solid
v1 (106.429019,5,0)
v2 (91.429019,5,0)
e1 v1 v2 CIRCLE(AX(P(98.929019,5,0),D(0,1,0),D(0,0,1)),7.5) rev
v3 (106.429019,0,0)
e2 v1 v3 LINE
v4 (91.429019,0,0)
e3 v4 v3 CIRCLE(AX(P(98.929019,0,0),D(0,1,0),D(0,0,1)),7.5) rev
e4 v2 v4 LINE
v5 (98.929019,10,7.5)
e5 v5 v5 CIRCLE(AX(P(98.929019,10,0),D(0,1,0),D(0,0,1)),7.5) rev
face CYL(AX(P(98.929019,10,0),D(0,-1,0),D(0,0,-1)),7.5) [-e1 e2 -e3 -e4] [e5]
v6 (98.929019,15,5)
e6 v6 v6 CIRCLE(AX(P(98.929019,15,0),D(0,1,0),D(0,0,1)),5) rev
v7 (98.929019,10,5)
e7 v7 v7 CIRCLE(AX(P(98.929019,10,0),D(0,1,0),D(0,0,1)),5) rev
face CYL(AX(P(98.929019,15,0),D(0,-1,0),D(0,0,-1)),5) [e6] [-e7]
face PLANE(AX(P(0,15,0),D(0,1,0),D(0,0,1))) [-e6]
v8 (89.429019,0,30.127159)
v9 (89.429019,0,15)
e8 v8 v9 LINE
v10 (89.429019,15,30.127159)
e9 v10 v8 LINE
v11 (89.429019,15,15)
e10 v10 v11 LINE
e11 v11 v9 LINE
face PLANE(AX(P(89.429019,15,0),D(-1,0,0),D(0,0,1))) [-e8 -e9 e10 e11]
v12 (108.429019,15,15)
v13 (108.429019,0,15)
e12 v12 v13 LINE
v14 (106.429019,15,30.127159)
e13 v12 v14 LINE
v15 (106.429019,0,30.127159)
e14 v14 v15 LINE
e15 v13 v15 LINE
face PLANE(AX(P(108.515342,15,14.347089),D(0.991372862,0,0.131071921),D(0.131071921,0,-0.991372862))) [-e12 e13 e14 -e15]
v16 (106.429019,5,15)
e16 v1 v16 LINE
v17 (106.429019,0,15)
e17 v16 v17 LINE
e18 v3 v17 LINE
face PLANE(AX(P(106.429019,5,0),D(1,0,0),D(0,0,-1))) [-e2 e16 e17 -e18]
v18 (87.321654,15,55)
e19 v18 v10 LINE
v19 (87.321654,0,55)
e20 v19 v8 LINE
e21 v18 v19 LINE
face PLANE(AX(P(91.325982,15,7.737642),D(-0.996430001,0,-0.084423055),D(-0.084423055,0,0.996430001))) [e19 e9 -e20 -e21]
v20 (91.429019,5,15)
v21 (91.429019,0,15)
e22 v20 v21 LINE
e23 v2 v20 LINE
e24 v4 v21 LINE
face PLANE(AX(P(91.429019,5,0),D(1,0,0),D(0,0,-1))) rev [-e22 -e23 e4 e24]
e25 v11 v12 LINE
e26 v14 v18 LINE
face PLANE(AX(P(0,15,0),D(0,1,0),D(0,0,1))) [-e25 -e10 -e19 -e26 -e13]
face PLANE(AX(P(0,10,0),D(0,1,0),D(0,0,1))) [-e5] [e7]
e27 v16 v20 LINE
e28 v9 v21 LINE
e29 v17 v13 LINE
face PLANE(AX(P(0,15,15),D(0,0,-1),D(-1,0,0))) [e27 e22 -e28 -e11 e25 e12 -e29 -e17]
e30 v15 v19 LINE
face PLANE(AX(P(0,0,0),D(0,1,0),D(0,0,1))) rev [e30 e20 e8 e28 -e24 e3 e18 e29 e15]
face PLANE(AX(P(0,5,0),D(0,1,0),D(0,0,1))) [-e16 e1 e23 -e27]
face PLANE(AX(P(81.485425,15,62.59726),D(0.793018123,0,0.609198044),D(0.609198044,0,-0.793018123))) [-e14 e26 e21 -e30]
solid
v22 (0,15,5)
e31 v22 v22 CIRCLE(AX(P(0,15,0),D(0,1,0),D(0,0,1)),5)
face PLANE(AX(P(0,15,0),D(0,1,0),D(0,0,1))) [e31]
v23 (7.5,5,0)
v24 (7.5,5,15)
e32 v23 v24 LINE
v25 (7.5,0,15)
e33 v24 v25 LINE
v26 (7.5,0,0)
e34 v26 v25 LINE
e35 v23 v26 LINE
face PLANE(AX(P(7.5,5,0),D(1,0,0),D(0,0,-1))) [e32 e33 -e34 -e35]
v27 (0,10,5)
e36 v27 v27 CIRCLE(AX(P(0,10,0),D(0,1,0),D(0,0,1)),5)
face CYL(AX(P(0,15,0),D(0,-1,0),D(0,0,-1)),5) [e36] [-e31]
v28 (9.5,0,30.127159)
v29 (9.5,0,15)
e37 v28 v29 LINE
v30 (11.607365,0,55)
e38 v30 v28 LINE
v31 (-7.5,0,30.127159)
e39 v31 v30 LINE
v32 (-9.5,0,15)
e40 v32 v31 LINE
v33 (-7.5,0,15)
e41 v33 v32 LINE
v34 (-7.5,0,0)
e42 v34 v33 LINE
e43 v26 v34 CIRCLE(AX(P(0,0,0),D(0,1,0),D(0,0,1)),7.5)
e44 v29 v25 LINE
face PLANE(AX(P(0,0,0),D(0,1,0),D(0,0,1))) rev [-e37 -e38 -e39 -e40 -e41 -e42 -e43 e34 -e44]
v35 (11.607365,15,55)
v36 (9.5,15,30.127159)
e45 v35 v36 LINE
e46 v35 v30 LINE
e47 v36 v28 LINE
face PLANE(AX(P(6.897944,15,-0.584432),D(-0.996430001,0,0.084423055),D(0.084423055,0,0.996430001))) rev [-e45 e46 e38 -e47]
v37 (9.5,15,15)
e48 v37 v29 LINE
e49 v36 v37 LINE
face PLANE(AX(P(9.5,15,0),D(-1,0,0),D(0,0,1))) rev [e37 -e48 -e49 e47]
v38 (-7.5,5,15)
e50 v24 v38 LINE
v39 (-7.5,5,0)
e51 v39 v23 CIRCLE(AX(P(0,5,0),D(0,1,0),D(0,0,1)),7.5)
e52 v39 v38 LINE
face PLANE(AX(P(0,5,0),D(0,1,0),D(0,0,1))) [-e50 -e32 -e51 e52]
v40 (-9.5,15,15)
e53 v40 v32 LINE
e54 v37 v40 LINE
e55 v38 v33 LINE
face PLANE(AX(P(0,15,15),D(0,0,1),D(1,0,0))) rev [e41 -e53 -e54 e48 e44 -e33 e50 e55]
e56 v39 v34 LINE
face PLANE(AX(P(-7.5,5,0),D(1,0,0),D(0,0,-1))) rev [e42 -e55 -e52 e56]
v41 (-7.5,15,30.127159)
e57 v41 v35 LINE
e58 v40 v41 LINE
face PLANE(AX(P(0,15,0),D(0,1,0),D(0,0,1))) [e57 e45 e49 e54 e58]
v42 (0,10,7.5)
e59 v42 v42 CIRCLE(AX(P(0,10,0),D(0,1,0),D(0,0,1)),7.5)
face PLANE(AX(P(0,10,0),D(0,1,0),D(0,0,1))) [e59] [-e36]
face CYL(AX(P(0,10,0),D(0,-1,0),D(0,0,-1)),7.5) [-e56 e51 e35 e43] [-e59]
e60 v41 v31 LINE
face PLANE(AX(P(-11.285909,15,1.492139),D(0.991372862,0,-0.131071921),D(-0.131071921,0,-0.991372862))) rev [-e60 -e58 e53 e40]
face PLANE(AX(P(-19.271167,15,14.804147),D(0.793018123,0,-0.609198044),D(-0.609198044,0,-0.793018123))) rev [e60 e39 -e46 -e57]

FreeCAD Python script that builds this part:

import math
import FreeCAD as App
import Part
import Sketcher


def add_polygon(sketch, points):
    """Adds a closed chain of lines whose ends are joined by coincident constraints."""
    first, n = sketch.GeometryCount, len(points)
    for a, b in zip(points, points[1:] + points[:1]):
        sketch.addGeometry(Part.LineSegment(App.Vector(*a, 0), App.Vector(*b, 0)), False)
    for i in range(n):
        sketch.addConstraint(Sketcher.Constraint("Coincident", first + i, 2, first + (i + 1) % n, 1))

doc = App.newDocument("Part")
body = doc.addObject("PartDesign::Body", "Body")

# Sketch on XZ plane
sketch1 = doc.addObject("Sketcher::SketchObject", "Sketch")
body.addObject(sketch1)
sketch1.AttachmentSupport = (doc.XZ_Plane, [""])
sketch1.MapMode = "FlatFace"
sketch1.addGeometry(Part.Circle(App.Vector(0, 0, 0), App.Vector(0, 0, 1), 8), False)
sketch1.addGeometry(Part.Circle(App.Vector(0, 0, 0), App.Vector(0, 0, 1), 5), False)
sketch1.addConstraint(Sketcher.Constraint("Coincident", 0, 3, -1, 1))
sketch1.addConstraint(Sketcher.Constraint("Coincident", 1, 3, -1, 1))
sketch1.addConstraint(Sketcher.Constraint("Diameter", 0, 15.0))
sketch1.addConstraint(Sketcher.Constraint("Diameter", 1, 10.0))
pad1 = doc.addObject("PartDesign::Pad", "Pad")
body.addObject(pad1)
pad1.Profile = sketch1
pad1.Length = 10
pad1.Reversed = True
body2 = doc.addObject("PartDesign::Body", "Body001")

# Sketch on XZ plane
sketch2 = doc.addObject("Sketcher::SketchObject", "Sketch001")
body2.addObject(sketch2)
sketch2.AttachmentSupport = (doc.getObject("XZ_Plane001"), [""])
sketch2.MapMode = "FlatFace"
add_polygon(sketch2, [(10, 30), (10, 15), (-10, 15), (-8, 30), (12, 55)])  # lines 0-4
sketch2.addConstraint(Sketcher.Constraint("Vertical", 0))
sketch2.addConstraint(Sketcher.Constraint("Horizontal", 1))
sketch2.addConstraint(Sketcher.Constraint("Horizontal", 2, 2, 4, 2))
sketch2.addConstraint(Sketcher.Constraint("DistanceX", 1, 2, 1, 1, 19.0))
sketch2.addConstraint(Sketcher.Constraint("DistanceY", -1, 1, 0, 2, 15.0))
sketch2.addConstraint(Sketcher.Constraint("DistanceY", -1, 1, 3, 2, 55.0))
sketch2.addConstraint(Sketcher.Constraint("DistanceX", 1, 2, 2, 2, 2.0))
sketch2.addConstraint(Sketcher.Constraint("DistanceX", -1, 1, 0, 2, 9.5))
sketch2.addConstraint(Sketcher.Constraint("Distance", 2, 15.258798))
sketch2.addConstraint(Sketcher.Constraint("Distance", 3, 31.364783))
pad2 = doc.addObject("PartDesign::Pad", "Pad001")
body2.addObject(pad2)
pad2.Profile = sketch2
pad2.Length = 15
pad2.Reversed = True
body.AllowCompound = True
doc.recompute()

boolean = doc.addObject("PartDesign::Boolean", "Boolean")
body.addObject(boolean)
boolean.Type = "Fuse"
boolean.addObjects([body2])

# Sketch on XZ plane
sketch3 = doc.addObject("Sketcher::SketchObject", "Sketch002")
body.addObject(sketch3)
sketch3.AttachmentSupport = (doc.XZ_Plane, [""])
sketch3.MapMode = "FlatFace"
sketch3.addGeometry(Part.LineSegment(App.Vector(-8, 0, 0), App.Vector(-8, 15, 0)), False)
sketch3.addGeometry(Part.LineSegment(App.Vector(-8, 15, 0), App.Vector(8, 15, 0)), False)
sketch3.addGeometry(Part.LineSegment(App.Vector(8, 15, 0), App.Vector(8, 0, 0)), False)
sketch3.addGeometry(Part.ArcOfCircle(Part.Circle(App.Vector(0, 0, 0), App.Vector(0, 0, 1), 8), math.radians(0), math.radians(180)), False)
sketch3.addConstraint(Sketcher.Constraint("Coincident", 0, 2, 1, 1))
sketch3.addConstraint(Sketcher.Constraint("Coincident", 1, 2, 2, 1))
sketch3.addConstraint(Sketcher.Constraint("Tangent", 2, 2, 3, 1))
sketch3.addConstraint(Sketcher.Constraint("Tangent", 3, 2, 0, 1))
sketch3.addConstraint(Sketcher.Constraint("Vertical", 0))
sketch3.addConstraint(Sketcher.Constraint("Horizontal", 1))
sketch3.addConstraint(Sketcher.Constraint("Vertical", 2))
sketch3.addConstraint(Sketcher.Constraint("Coincident", 3, 3, -1, 1))
sketch3.addConstraint(Sketcher.Constraint("Equal", 1, 0))
sketch3.addConstraint(Sketcher.Constraint("Radius", 3, 7.5))
pad3 = doc.addObject("PartDesign::Pad", "Pad002")
body.addObject(pad3)
pad3.Profile = sketch3
pad3.Length = 5
pad3.Reversed = True

# Sketch on XZ plane
sketch4 = doc.addObject("Sketcher::SketchObject", "Sketch003")
body.addObject(sketch4)
sketch4.AttachmentSupport = (doc.XZ_Plane, [""])
sketch4.MapMode = "FlatFace"
sketch4.addGeometry(Part.Circle(App.Vector(0, 0, 0), App.Vector(0, 0, 1), 5), False)
sketch4.addConstraint(Sketcher.Constraint("Coincident", 0, 3, -1, 1))
sketch4.addConstraint(Sketcher.Constraint("Diameter", 0, 10.0))
pad4 = doc.addObject("PartDesign::Pad", "Pad003")
body.addObject(pad4)
pad4.Profile = sketch4
pad4.Length = 15
pad4.Reversed = True
body3 = doc.addObject("PartDesign::Body", "Body002")

# Sketch on XZ plane
sketch5 = doc.addObject("Sketcher::SketchObject", "Sketch004")
body3.addObject(sketch5)
sketch5.AttachmentSupport = (doc.getObject("XZ_Plane002"), [""])
sketch5.MapMode = "FlatFace"
sketch5.addGeometry(Part.Circle(App.Vector(99, 0, 0), App.Vector(0, 0, 1), 5), False)
sketch5.addConstraint(Sketcher.Constraint("PointOnObject", 0, 3, -1))
sketch5.addConstraint(Sketcher.Constraint("Diameter", 0, 10.0))
sketch5.addConstraint(Sketcher.Constraint("DistanceX", -1, 1, 0, 3, 98.929019))
pad5 = doc.addObject("PartDesign::Pad", "Pad004")
body3.addObject(pad5)
pad5.Profile = sketch5
pad5.Length = 15
pad5.Reversed = True

# Sketch on XZ plane
sketch6 = doc.addObject("Sketcher::SketchObject", "Sketch005")
body3.addObject(sketch6)
sketch6.AttachmentSupport = (doc.getObject("XZ_Plane002"), [""])
sketch6.MapMode = "FlatFace"
sketch6.addGeometry(Part.Circle(App.Vector(99, 0, 0), App.Vector(0, 0, 1), 8), False)
sketch6.addGeometry(Part.Circle(App.Vector(99, 0, 0), App.Vector(0, 0, 1), 5), False)
sketch6.addConstraint(Sketcher.Constraint("Coincident", 1, 3, 0, 3))
sketch6.addConstraint(Sketcher.Constraint("PointOnObject", 0, 3, -1))
sketch6.addConstraint(Sketcher.Constraint("Diameter", 0, 15.0))
sketch6.addConstraint(Sketcher.Constraint("Diameter", 1, 10.0))
sketch6.addConstraint(Sketcher.Constraint("DistanceX", -1, 1, 0, 3, 98.929019))
pad6 = doc.addObject("PartDesign::Pad", "Pad005")
body3.addObject(pad6)
pad6.Profile = sketch6
pad6.Length = 10
pad6.Reversed = True

# Sketch on XZ plane
sketch7 = doc.addObject("Sketcher::SketchObject", "Sketch006")
body3.addObject(sketch7)
sketch7.AttachmentSupport = (doc.getObject("XZ_Plane002"), [""])
sketch7.MapMode = "FlatFace"
sketch7.addGeometry(Part.ArcOfCircle(Part.Circle(App.Vector(99, 0, 0), App.Vector(0, 0, 1), 8), math.radians(0), math.radians(180)), False)
sketch7.addGeometry(Part.LineSegment(App.Vector(91, 0, 0), App.Vector(91, 15, 0)), False)
sketch7.addGeometry(Part.LineSegment(App.Vector(91, 15, 0), App.Vector(106, 15, 0)), False)
sketch7.addGeometry(Part.LineSegment(App.Vector(106, 15, 0), App.Vector(106, 0, 0)), False)
sketch7.addConstraint(Sketcher.Constraint("Tangent", 0, 2, 1, 1))
sketch7.addConstraint(Sketcher.Constraint("Coincident", 1, 2, 2, 1))
sketch7.addConstraint(Sketcher.Constraint("Coincident", 2, 2, 3, 1))
sketch7.addConstraint(Sketcher.Constraint("Tangent", 3, 2, 0, 1))
sketch7.addConstraint(Sketcher.Constraint("Vertical", 1))
sketch7.addConstraint(Sketcher.Constraint("Horizontal", 2))
sketch7.addConstraint(Sketcher.Constraint("Vertical", 3))
sketch7.addConstraint(Sketcher.Constraint("PointOnObject", 0, 3, -1))
sketch7.addConstraint(Sketcher.Constraint("Equal", 2, 1))
sketch7.addConstraint(Sketcher.Constraint("Radius", 0, 7.5))
sketch7.addConstraint(Sketcher.Constraint("DistanceX", -1, 1, 0, 3, 98.929019))
pad7 = doc.addObject("PartDesign::Pad", "Pad006")
body3.addObject(pad7)
pad7.Profile = sketch7
pad7.Length = 5
pad7.Reversed = True

# Sketch on XZ plane
sketch8 = doc.addObject("Sketcher::SketchObject", "Sketch007")
body3.addObject(sketch8)
sketch8.AttachmentSupport = (doc.getObject("XZ_Plane002"), [""])
sketch8.MapMode = "FlatFace"
add_polygon(sketch8, [(89, 15), (89, 30), (87, 55), (106, 30), (108, 15)])  # lines 0-4
sketch8.addConstraint(Sketcher.Constraint("Vertical", 0))
sketch8.addConstraint(Sketcher.Constraint("Horizontal", 4))
sketch8.addConstraint(Sketcher.Constraint("Horizontal", 0, 2, 2, 2))
sketch8.addConstraint(Sketcher.Constraint("DistanceX", 4, 2, 4, 1, 19.0))
sketch8.addConstraint(Sketcher.Constraint("DistanceY", -1, 1, 1, 2, 55.0))
sketch8.addConstraint(Sketcher.Constraint("DistanceY", -1, 1, 3, 2, 15.0))
sketch8.addConstraint(Sketcher.Constraint("DistanceX", 0, 2, 2, 2, 17.0))
sketch8.addConstraint(Sketcher.Constraint("Distance", 3, 15.258798))
sketch8.addConstraint(Sketcher.Constraint("DistanceX", -1, 1, 0, 2, 89.429019))
sketch8.addConstraint(Sketcher.Constraint("Distance", 1, 24.961956))
pad8 = doc.addObject("PartDesign::Pad", "Pad007")
body3.addObject(pad8)
pad8.Profile = sketch8
pad8.Length = 15
pad8.Reversed = True

doc.recompute()
